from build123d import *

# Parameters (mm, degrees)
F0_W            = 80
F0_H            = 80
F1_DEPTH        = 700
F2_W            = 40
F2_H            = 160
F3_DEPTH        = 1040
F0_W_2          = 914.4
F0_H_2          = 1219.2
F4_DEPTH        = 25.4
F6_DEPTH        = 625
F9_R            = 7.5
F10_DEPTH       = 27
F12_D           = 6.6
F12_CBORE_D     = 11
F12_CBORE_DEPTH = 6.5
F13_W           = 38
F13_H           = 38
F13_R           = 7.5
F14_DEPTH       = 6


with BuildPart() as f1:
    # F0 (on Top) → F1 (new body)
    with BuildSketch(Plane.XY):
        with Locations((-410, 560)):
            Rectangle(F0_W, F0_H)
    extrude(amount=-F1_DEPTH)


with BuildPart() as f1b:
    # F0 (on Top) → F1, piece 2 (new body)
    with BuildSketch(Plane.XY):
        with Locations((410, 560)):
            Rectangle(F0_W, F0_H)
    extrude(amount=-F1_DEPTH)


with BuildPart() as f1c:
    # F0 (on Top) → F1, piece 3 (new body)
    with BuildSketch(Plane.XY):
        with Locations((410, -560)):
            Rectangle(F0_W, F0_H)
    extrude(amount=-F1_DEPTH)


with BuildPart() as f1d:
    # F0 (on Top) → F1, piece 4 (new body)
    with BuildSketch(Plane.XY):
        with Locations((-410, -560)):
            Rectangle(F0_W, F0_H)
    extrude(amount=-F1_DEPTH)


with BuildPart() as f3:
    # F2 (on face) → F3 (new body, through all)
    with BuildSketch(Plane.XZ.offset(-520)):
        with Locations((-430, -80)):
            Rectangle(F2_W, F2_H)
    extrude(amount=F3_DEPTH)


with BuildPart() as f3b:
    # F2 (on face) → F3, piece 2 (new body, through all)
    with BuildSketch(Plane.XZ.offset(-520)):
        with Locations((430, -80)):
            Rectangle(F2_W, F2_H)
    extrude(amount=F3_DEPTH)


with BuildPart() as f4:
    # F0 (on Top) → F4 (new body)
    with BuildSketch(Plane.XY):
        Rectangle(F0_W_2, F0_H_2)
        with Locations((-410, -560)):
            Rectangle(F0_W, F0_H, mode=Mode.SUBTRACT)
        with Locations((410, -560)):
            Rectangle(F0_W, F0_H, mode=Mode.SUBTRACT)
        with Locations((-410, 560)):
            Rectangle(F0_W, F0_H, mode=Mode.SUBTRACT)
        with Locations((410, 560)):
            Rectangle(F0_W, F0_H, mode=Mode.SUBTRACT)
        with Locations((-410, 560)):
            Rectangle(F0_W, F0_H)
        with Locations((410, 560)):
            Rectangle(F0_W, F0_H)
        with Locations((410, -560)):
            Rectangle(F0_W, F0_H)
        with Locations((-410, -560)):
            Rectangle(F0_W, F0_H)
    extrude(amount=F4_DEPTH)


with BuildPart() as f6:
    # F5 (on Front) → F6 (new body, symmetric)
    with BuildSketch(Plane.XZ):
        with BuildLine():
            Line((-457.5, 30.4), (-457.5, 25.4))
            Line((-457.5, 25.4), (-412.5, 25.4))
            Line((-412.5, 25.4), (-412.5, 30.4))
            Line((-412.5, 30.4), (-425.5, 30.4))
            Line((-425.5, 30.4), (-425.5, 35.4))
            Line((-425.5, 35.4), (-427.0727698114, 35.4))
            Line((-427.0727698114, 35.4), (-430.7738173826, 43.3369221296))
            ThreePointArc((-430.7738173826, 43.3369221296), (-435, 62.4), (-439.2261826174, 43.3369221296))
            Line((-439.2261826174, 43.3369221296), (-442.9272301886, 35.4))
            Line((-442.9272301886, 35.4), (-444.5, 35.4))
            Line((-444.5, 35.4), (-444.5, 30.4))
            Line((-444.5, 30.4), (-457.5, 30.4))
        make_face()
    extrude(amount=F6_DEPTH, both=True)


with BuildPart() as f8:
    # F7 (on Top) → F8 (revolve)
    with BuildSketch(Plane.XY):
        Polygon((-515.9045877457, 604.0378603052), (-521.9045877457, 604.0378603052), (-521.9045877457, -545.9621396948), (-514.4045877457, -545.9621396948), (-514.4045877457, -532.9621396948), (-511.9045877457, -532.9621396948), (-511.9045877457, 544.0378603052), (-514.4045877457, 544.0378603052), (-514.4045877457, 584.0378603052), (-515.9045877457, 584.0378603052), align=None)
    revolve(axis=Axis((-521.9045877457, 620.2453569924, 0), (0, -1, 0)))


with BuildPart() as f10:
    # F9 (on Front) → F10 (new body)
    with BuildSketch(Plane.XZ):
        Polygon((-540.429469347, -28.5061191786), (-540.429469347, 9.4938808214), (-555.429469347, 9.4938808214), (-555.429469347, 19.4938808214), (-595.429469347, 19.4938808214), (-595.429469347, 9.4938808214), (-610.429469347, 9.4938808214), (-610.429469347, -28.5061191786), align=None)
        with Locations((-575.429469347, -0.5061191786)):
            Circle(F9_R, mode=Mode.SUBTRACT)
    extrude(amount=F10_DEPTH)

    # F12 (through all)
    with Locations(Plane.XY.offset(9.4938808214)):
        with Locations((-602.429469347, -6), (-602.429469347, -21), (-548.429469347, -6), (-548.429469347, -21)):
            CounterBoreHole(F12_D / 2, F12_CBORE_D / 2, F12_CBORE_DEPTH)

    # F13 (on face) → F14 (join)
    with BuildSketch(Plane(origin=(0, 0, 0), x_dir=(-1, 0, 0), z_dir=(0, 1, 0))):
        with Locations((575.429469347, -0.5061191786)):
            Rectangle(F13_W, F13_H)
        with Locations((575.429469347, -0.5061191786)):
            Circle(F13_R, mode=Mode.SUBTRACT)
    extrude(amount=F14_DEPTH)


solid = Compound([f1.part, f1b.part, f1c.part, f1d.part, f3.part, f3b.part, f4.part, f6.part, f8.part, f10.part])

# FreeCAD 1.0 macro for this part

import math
import FreeCAD as App
import Part
import Sketcher
from FreeCAD import Vector
Q = App.Units.Quantity

doc = App.newDocument("Part")
params = doc.addObject("Spreadsheet::Sheet", "Params")
for row, (alias, value) in enumerate([
    ("sketch1_width", "80 mm"),
    ("pad1_length", "700 mm"),
    ("sketch2_width", "80 mm"),
    ("pad2_length", "700 mm"),
    ("sketch3_width", "80 mm"),
    ("pad3_length", "700 mm"),
    ("sketch4_width", "80 mm"),
    ("pad4_length", "700 mm"),
    ("sketch5_width", "40 mm"),
    ("sketch5_height", "160 mm"),
    ("pad5_length", "1040 mm"),
    ("sketch6_width", "40 mm"),
    ("sketch6_height", "160 mm"),
    ("pad6_length", "1040 mm"),
    ("sketch7_width", "914.4 mm"),
    ("sketch7_height", "1219.2 mm"),
    ("pad7_length", "25.4 mm"),
    ("sketch8_radius", "10 mm"),
    ("sketch8_width", "45 mm"),
    ("sketch8_width2", "13 mm"),
    ("sketch8_height", "5 mm"),
    ("pad8_length", "1250 mm"),
    ("sketch9_width", "6 mm"),
    ("sketch9_height", "1150 mm"),
    ("sketch9_height2", "13 mm"),
    ("sketch9_height3", "1077 mm"),
    ("sketch9_height4", "40 mm"),
    ("revolution_angle", "360 deg"),
    ("sketch10_diameter", "15 mm"),
    ("sketch10_width", "15 mm"),
    ("sketch10_width2", "40 mm"),
    ("sketch10_height", "38 mm"),
    ("sketch10_height2", "10 mm"),
    ("pad9_length", "27 mm"),
    ("sketch11_diameter", "6.6 mm"),
    ("hole_diameter", "6.6 mm"),
    ("hole_cbore_diameter", "11 mm"),
    ("hole_cbore_depth", "6.5 mm"),
    ("sketch12_diameter", "15 mm"),
    ("sketch12_width", "38 mm"),
    ("pad10_length", "6 mm"),
], start=1):
    params.set(f"A{row}", alias)
    params.set(f"B{row}", "=" + value)
    params.setAlias(f"B{row}", alias)

body = doc.addObject("PartDesign::Body", "Body")

# Sketch on XY plane
sketch1 = doc.addObject("Sketcher::SketchObject", "Sketch")
body.addObject(sketch1)
sketch1.AttachmentSupport = (doc.XY_Plane, [""])
sketch1.MapMode = "FlatFace"
sketch1.addGeometry([
    Part.LineSegment(Vector(-450, 600, 0), Vector(-450, 520, 0)),
    Part.LineSegment(Vector(-450, 520, 0), Vector(-370, 520, 0)),
    Part.LineSegment(Vector(-370, 520, 0), Vector(-370, 600, 0)),
    Part.LineSegment(Vector(-370, 600, 0), Vector(-450, 600, 0)),
], False)
sketch1.addConstraint([
    Sketcher.Constraint("Coincident", 0, 2, 1, 1),
    Sketcher.Constraint("Coincident", 1, 2, 2, 1),
    Sketcher.Constraint("Coincident", 2, 2, 3, 1),
    Sketcher.Constraint("Coincident", 3, 2, 0, 1),
    Sketcher.Constraint("Vertical", 0),
    Sketcher.Constraint("Horizontal", 1),
    Sketcher.Constraint("Vertical", 2),
    Sketcher.Constraint("Horizontal", 3),
    Sketcher.Constraint("Equal", 3, 0),
    Sketcher.Constraint("DistanceX", 1, 1, 1, 2, Q("80 mm")),
    Sketcher.Constraint("DistanceX", 0, 2, -1, 1, Q("450 mm")),
    Sketcher.Constraint("DistanceY", -1, 1, 0, 2, Q("520 mm")),
])
sketch1.setExpression("Constraints[9]", "Params.sketch1_width")
pad1 = doc.addObject("PartDesign::Pad", "Pad")
body.addObject(pad1)
pad1.Profile = sketch1
pad1.setExpression("Length", "Params.pad1_length")
pad1.Reversed = True
body2 = doc.addObject("PartDesign::Body", "Body001")

# Sketch on XY plane
sketch2 = doc.addObject("Sketcher::SketchObject", "Sketch001")
body2.addObject(sketch2)
sketch2.AttachmentSupport = (doc.getObject("XY_Plane001"), [""])
sketch2.MapMode = "FlatFace"
sketch2.addGeometry([
    Part.LineSegment(Vector(370, 600, 0), Vector(370, 520, 0)),
    Part.LineSegment(Vector(370, 520, 0), Vector(450, 520, 0)),
    Part.LineSegment(Vector(450, 520, 0), Vector(450, 600, 0)),
    Part.LineSegment(Vector(450, 600, 0), Vector(370, 600, 0)),
], False)
sketch2.addConstraint([
    Sketcher.Constraint("Coincident", 0, 2, 1, 1),
    Sketcher.Constraint("Coincident", 1, 2, 2, 1),
    Sketcher.Constraint("Coincident", 2, 2, 3, 1),
    Sketcher.Constraint("Coincident", 3, 2, 0, 1),
    Sketcher.Constraint("Vertical", 0),
    Sketcher.Constraint("Horizontal", 1),
    Sketcher.Constraint("Vertical", 2),
    Sketcher.Constraint("Horizontal", 3),
    Sketcher.Constraint("Equal", 3, 0),
    Sketcher.Constraint("DistanceX", 1, 1, 1, 2, Q("80 mm")),
    Sketcher.Constraint("DistanceX", -1, 1, 0, 2, Q("370 mm")),
    Sketcher.Constraint("DistanceY", -1, 1, 0, 2, Q("520 mm")),
])
sketch2.setExpression("Constraints[9]", "Params.sketch2_width")
pad2 = doc.addObject("PartDesign::Pad", "Pad001")
body2.addObject(pad2)
pad2.Profile = sketch2
pad2.setExpression("Length", "Params.pad2_length")
pad2.Reversed = True
body3 = doc.addObject("PartDesign::Body", "Body002")

# Sketch on XY plane
sketch3 = doc.addObject("Sketcher::SketchObject", "Sketch002")
body3.addObject(sketch3)
sketch3.AttachmentSupport = (doc.getObject("XY_Plane002"), [""])
sketch3.MapMode = "FlatFace"
sketch3.addGeometry([
    Part.LineSegment(Vector(370, -520, 0), Vector(370, -600, 0)),
    Part.LineSegment(Vector(370, -600, 0), Vector(450, -600, 0)),
    Part.LineSegment(Vector(450, -600, 0), Vector(450, -520, 0)),
    Part.LineSegment(Vector(450, -520, 0), Vector(370, -520, 0)),
], False)
sketch3.addConstraint([
    Sketcher.Constraint("Coincident", 0, 2, 1, 1),
    Sketcher.Constraint("Coincident", 1, 2, 2, 1),
    Sketcher.Constraint("Coincident", 2, 2, 3, 1),
    Sketcher.Constraint("Coincident", 3, 2, 0, 1),
    Sketcher.Constraint("Vertical", 0),
    Sketcher.Constraint("Horizontal", 1),
    Sketcher.Constraint("Vertical", 2),
    Sketcher.Constraint("Horizontal", 3),
    Sketcher.Constraint("Equal", 3, 0),
    Sketcher.Constraint("DistanceX", 1, 1, 1, 2, Q("80 mm")),
    Sketcher.Constraint("DistanceX", -1, 1, 0, 2, Q("370 mm")),
    Sketcher.Constraint("DistanceY", 0, 2, -1, 1, Q("600 mm")),
])
sketch3.setExpression("Constraints[9]", "Params.sketch3_width")
pad3 = doc.addObject("PartDesign::Pad", "Pad002")
body3.addObject(pad3)
pad3.Profile = sketch3
pad3.setExpression("Length", "Params.pad3_length")
pad3.Reversed = True
body4 = doc.addObject("PartDesign::Body", "Body003")

# Sketch on XY plane
sketch4 = doc.addObject("Sketcher::SketchObject", "Sketch003")
body4.addObject(sketch4)
sketch4.AttachmentSupport = (doc.getObject("XY_Plane003"), [""])
sketch4.MapMode = "FlatFace"
sketch4.addGeometry([
    Part.LineSegment(Vector(-450, -520, 0), Vector(-450, -600, 0)),
    Part.LineSegment(Vector(-450, -600, 0), Vector(-370, -600, 0)),
    Part.LineSegment(Vector(-370, -600, 0), Vector(-370, -520, 0)),
    Part.LineSegment(Vector(-370, -520, 0), Vector(-450, -520, 0)),
], False)
sketch4.addConstraint([
    Sketcher.Constraint("Coincident", 0, 2, 1, 1),
    Sketcher.Constraint("Coincident", 1, 2, 2, 1),
    Sketcher.Constraint("Coincident", 2, 2, 3, 1),
    Sketcher.Constraint("Coincident", 3, 2, 0, 1),
    Sketcher.Constraint("Vertical", 0),
    Sketcher.Constraint("Horizontal", 1),
    Sketcher.Constraint("Vertical", 2),
    Sketcher.Constraint("Horizontal", 3),
    Sketcher.Constraint("Equal", 3, 0),
    Sketcher.Constraint("DistanceX", 1, 1, 1, 2, Q("80 mm")),
    Sketcher.Constraint("DistanceX", 0, 2, -1, 1, Q("450 mm")),
    Sketcher.Constraint("DistanceY", 0, 2, -1, 1, Q("600 mm")),
])
sketch4.setExpression("Constraints[9]", "Params.sketch4_width")
pad4 = doc.addObject("PartDesign::Pad", "Pad003")
body4.addObject(pad4)
pad4.Profile = sketch4
pad4.setExpression("Length", "Params.pad4_length")
pad4.Reversed = True
body5 = doc.addObject("PartDesign::Body", "Body004")

# Sketch on XZ plane
sketch5 = doc.addObject("Sketcher::SketchObject", "Sketch004")
body5.addObject(sketch5)
sketch5.AttachmentSupport = (doc.getObject("XZ_Plane004"), [""])
sketch5.MapMode = "FlatFace"
sketch5.AttachmentOffset = App.Placement(Vector(0, 0, -520), App.Rotation())
sketch5.addGeometry([
    Part.LineSegment(Vector(-450, 0, 0), Vector(-450, -160, 0)),
    Part.LineSegment(Vector(-450, -160, 0), Vector(-410, -160, 0)),
    Part.LineSegment(Vector(-410, -160, 0), Vector(-410, 0, 0)),
    Part.LineSegment(Vector(-410, 0, 0), Vector(-450, 0, 0)),
], False)
sketch5.addConstraint([
    Sketcher.Constraint("Coincident", 0, 2, 1, 1),
    Sketcher.Constraint("Coincident", 1, 2, 2, 1),
    Sketcher.Constraint("Coincident", 2, 2, 3, 1),
    Sketcher.Constraint("Coincident", 3, 2, 0, 1),
    Sketcher.Constraint("Vertical", 0),
    Sketcher.Constraint("Horizontal", 1),
    Sketcher.Constraint("Vertical", 2),
    Sketcher.Constraint("Horizontal", 3),
    Sketcher.Constraint("PointOnObject", 2, 2, -1),
    Sketcher.Constraint("DistanceX", 1, 1, 1, 2, Q("40 mm")),
    Sketcher.Constraint("DistanceY", 0, 2, 0, 1, Q("160 mm")),
    Sketcher.Constraint("DistanceX", 0, 2, -1, 1, Q("450 mm")),
])
sketch5.setExpression("Constraints[9]", "Params.sketch5_width")
sketch5.setExpression("Constraints[10]", "Params.sketch5_height")
pad5 = doc.addObject("PartDesign::Pad", "Pad004")
body5.addObject(pad5)
pad5.Profile = sketch5
pad5.setExpression("Length", "Params.pad5_length")
body6 = doc.addObject("PartDesign::Body", "Body005")

# Sketch on XZ plane
sketch6 = doc.addObject("Sketcher::SketchObject", "Sketch005")
body6.addObject(sketch6)
sketch6.AttachmentSupport = (doc.getObject("XZ_Plane005"), [""])
sketch6.MapMode = "FlatFace"
sketch6.AttachmentOffset = App.Placement(Vector(0, 0, -520), App.Rotation())
sketch6.addGeometry([
    Part.LineSegment(Vector(410, 0, 0), Vector(410, -160, 0)),
    Part.LineSegment(Vector(410, -160, 0), Vector(450, -160, 0)),
    Part.LineSegment(Vector(450, -160, 0), Vector(450, 0, 0)),
    Part.LineSegment(Vector(450, 0, 0), Vector(410, 0, 0)),
], False)
sketch6.addConstraint([
    Sketcher.Constraint("Coincident", 0, 2, 1, 1),
    Sketcher.Constraint("Coincident", 1, 2, 2, 1),
    Sketcher.Constraint("Coincident", 2, 2, 3, 1),
    Sketcher.Constraint("Coincident", 3, 2, 0, 1),
    Sketcher.Constraint("Vertical", 0),
    Sketcher.Constraint("Horizontal", 1),
    Sketcher.Constraint("Vertical", 2),
    Sketcher.Constraint("Horizontal", 3),
    Sketcher.Constraint("PointOnObject", 2, 2, -1),
    Sketcher.Constraint("DistanceX", 1, 1, 1, 2, Q("40 mm")),
    Sketcher.Constraint("DistanceY", 0, 2, 0, 1, Q("160 mm")),
    Sketcher.Constraint("DistanceX", -1, 1, 0, 2, Q("410 mm")),
])
sketch6.setExpression("Constraints[9]", "Params.sketch6_width")
sketch6.setExpression("Constraints[10]", "Params.sketch6_height")
pad6 = doc.addObject("PartDesign::Pad", "Pad005")
body6.addObject(pad6)
pad6.Profile = sketch6
pad6.setExpression("Length", "Params.pad6_length")
body7 = doc.addObject("PartDesign::Body", "Body006")

# Sketch on XY plane
sketch7 = doc.addObject("Sketcher::SketchObject", "Sketch006")
body7.addObject(sketch7)
sketch7.AttachmentSupport = (doc.getObject("XY_Plane006"), [""])
sketch7.MapMode = "FlatFace"
sketch7.addGeometry([
    Part.LineSegment(Vector(-457, 610, 0), Vector(-457, -610, 0)),
    Part.LineSegment(Vector(-457, -610, 0), Vector(457, -610, 0)),
    Part.LineSegment(Vector(457, -610, 0), Vector(457, 610, 0)),
    Part.LineSegment(Vector(457, 610, 0), Vector(-457, 610, 0)),
], False)
sketch7.addConstraint([
    Sketcher.Constraint("Coincident", 0, 2, 1, 1),
    Sketcher.Constraint("Coincident", 1, 2, 2, 1),
    Sketcher.Constraint("Coincident", 2, 2, 3, 1),
    Sketcher.Constraint("Coincident", 3, 2, 0, 1),
    Sketcher.Constraint("Vertical", 0),
    Sketcher.Constraint("Horizontal", 1),
    Sketcher.Constraint("Vertical", 2),
    Sketcher.Constraint("Horizontal", 3),
    Sketcher.Constraint("Symmetric", 0, 2, 2, 2, -1, 1),
    Sketcher.Constraint("DistanceX", 1, 1, 1, 2, Q("914.4 mm")),
    Sketcher.Constraint("DistanceY", 0, 2, 0, 1, Q("1219.2 mm")),
])
sketch7.setExpression("Constraints[9]", "Params.sketch7_width")
sketch7.setExpression("Constraints[10]", "Params.sketch7_height")
pad7 = doc.addObject("PartDesign::Pad", "Pad006")
body7.addObject(pad7)
pad7.Profile = sketch7
pad7.setExpression("Length", "Params.pad7_length")
body8 = doc.addObject("PartDesign::Body", "Body007")

# Sketch on XZ plane
sketch8 = doc.addObject("Sketcher::SketchObject", "Sketch007")
body8.addObject(sketch8)
sketch8.AttachmentSupport = (doc.getObject("XZ_Plane007"), [""])
sketch8.MapMode = "FlatFace"
sketch8.addGeometry([
    Part.LineSegment(Vector(-457.5, 30.4, 0), Vector(-457.5, 25.4, 0)),  # 0
    Part.LineSegment(Vector(-457.5, 25.4, 0), Vector(-412.5, 25.4, 0)),  # 1
    Part.LineSegment(Vector(-412.5, 25.4, 0), Vector(-412.5, 30.4, 0)),  # 2
    Part.LineSegment(Vector(-412.5, 30.4, 0), Vector(-425.5, 30.4, 0)),  # 3
    Part.LineSegment(Vector(-425.5, 30.4, 0), Vector(-425.5, 35.4, 0)),  # 4
    Part.LineSegment(Vector(-425.5, 35.4, 0), Vector(-427.1, 35.4, 0)),  # 5
    Part.LineSegment(Vector(-427.1, 35.4, 0), Vector(-430.8, 43.3, 0)),  # 6
    Part.ArcOfCircle(Part.Circle(Vector(-435, 52.4, 0), Vector(0, 0, 1), 10), math.radians(-65), math.radians(245)),  # 7
    Part.LineSegment(Vector(-439.2, 43.3, 0), Vector(-442.9, 35.4, 0)),  # 8
    Part.LineSegment(Vector(-442.9, 35.4, 0), Vector(-444.5, 35.4, 0)),  # 9
    Part.LineSegment(Vector(-444.5, 35.4, 0), Vector(-444.5, 30.4, 0)),  # 10
    Part.LineSegment(Vector(-444.5, 30.4, 0), Vector(-457.5, 30.4, 0)),  # 11
], False)
sketch8.addConstraint([
    Sketcher.Constraint("Coincident", 0, 2, 1, 1),
    Sketcher.Constraint("Coincident", 1, 2, 2, 1),
    Sketcher.Constraint("Coincident", 2, 2, 3, 1),
    Sketcher.Constraint("Coincident", 3, 2, 4, 1),
    Sketcher.Constraint("Coincident", 4, 2, 5, 1),
    Sketcher.Constraint("Coincident", 5, 2, 6, 1),
    Sketcher.Constraint("Coincident", 6, 2, 7, 1),
    Sketcher.Constraint("Coincident", 7, 2, 8, 1),
    Sketcher.Constraint("Coincident", 8, 2, 9, 1),
    Sketcher.Constraint("Coincident", 9, 2, 10, 1),
    Sketcher.Constraint("Coincident", 10, 2, 11, 1),
    Sketcher.Constraint("Coincident", 11, 2, 0, 1),
    Sketcher.Constraint("Vertical", 0),
    Sketcher.Constraint("Horizontal", 1),
    Sketcher.Constraint("Vertical", 2),
    Sketcher.Constraint("Horizontal", 3),
    Sketcher.Constraint("Vertical", 4),
    Sketcher.Constraint("Horizontal", 5),
    Sketcher.Constraint("Horizontal", 9),
    Sketcher.Constraint("Vertical", 10),
    Sketcher.Constraint("Horizontal", 11),
    Sketcher.Constraint("Horizontal", 6, 2, 7, 2),
    Sketcher.Constraint("Horizontal", 5, 2, 8, 2),
    Sketcher.Constraint("Horizontal", 3, 2, 10, 2),
    Sketcher.Constraint("Equal", 5, 9),
    Sketcher.Constraint("Equal", 3, 11),
    Sketcher.Constraint("Equal", 2, 4),
    Sketcher.Constraint("Equal", 6, 8),
    Sketcher.Constraint("Radius", 7, Q("10 mm")),
    Sketcher.Constraint("DistanceX", 1, 1, 1, 2, Q("45 mm")),
    Sketcher.Constraint("DistanceX", 3, 2, 3, 1, Q("13 mm")),
    Sketcher.Constraint("DistanceY", 0, 2, 0, 1, Q("5 mm")),
    Sketcher.Constraint("Angle", 6, Q("115 deg")),
    Sketcher.Constraint("DistanceX", 7, 3, -1, 1, Q("435 mm")),
    Sketcher.Constraint("DistanceY", 0, 2, 7, 3, Q("27 mm")),
    Sketcher.Constraint("DistanceY", -1, 1, 7, 3, Q("52.4 mm")),
    Sketcher.Constraint("DistanceX", 5, 2, 5, 1, Q("1.57277 mm")),
])
sketch8.setExpression("Constraints[28]", "Params.sketch8_radius")
sketch8.setExpression("Constraints[29]", "Params.sketch8_width")
sketch8.setExpression("Constraints[30]", "Params.sketch8_width2")
sketch8.setExpression("Constraints[31]", "Params.sketch8_height")
pad8 = doc.addObject("PartDesign::Pad", "Pad007")
body8.addObject(pad8)
pad8.Profile = sketch8
pad8.setExpression("Length", "Params.pad8_length")
pad8.Midplane = True
body9 = doc.addObject("PartDesign::Body", "Body008")

# Sketch on XY plane
sketch9 = doc.addObject("Sketcher::SketchObject", "Sketch008")
body9.addObject(sketch9)
sketch9.AttachmentSupport = (doc.getObject("XY_Plane008"), [""])
sketch9.MapMode = "FlatFace"
sketch9.addGeometry([
    Part.LineSegment(Vector(-515.9, 604, 0), Vector(-521.9, 604, 0)),  # 0
    Part.LineSegment(Vector(-521.9, 604, 0), Vector(-521.9, -546, 0)),  # 1
    Part.LineSegment(Vector(-521.9, -546, 0), Vector(-514.4, -546, 0)),  # 2
    Part.LineSegment(Vector(-514.4, -546, 0), Vector(-514.4, -533, 0)),  # 3
    Part.LineSegment(Vector(-514.4, -533, 0), Vector(-511.9, -533, 0)),  # 4
    Part.LineSegment(Vector(-511.9, -533, 0), Vector(-511.9, 544, 0)),  # 5
    Part.LineSegment(Vector(-511.9, 544, 0), Vector(-514.4, 544, 0)),  # 6
    Part.LineSegment(Vector(-514.4, 544, 0), Vector(-514.4, 584, 0)),  # 7
    Part.LineSegment(Vector(-514.4, 584, 0), Vector(-515.9, 584, 0)),  # 8
    Part.LineSegment(Vector(-515.9, 584, 0), Vector(-515.9, 604, 0)),  # 9
], False)
sketch9.addGeometry(Part.LineSegment(Vector(-521.9, 604, 0), Vector(-521.9, -546, 0)), True)  # axis
sketch9.addConstraint([
    Sketcher.Constraint("Coincident", 0, 2, 1, 1),
    Sketcher.Constraint("Coincident", 1, 2, 2, 1),
    Sketcher.Constraint("Coincident", 2, 2, 3, 1),
    Sketcher.Constraint("Coincident", 3, 2, 4, 1),
    Sketcher.Constraint("Coincident", 4, 2, 5, 1),
    Sketcher.Constraint("Coincident", 5, 2, 6, 1),
    Sketcher.Constraint("Coincident", 6, 2, 7, 1),
    Sketcher.Constraint("Coincident", 7, 2, 8, 1),
    Sketcher.Constraint("Coincident", 8, 2, 9, 1),
    Sketcher.Constraint("Coincident", 9, 2, 0, 1),
    Sketcher.Constraint("Horizontal", 0),
    Sketcher.Constraint("Vertical", 1),
    Sketcher.Constraint("Horizontal", 2),
    Sketcher.Constraint("Vertical", 3),
    Sketcher.Constraint("Horizontal", 4),
    Sketcher.Constraint("Vertical", 5),
    Sketcher.Constraint("Horizontal", 6),
    Sketcher.Constraint("Vertical", 7),
    Sketcher.Constraint("Horizontal", 8),
    Sketcher.Constraint("Vertical", 9),
    Sketcher.Constraint("Vertical", 10),
    Sketcher.Constraint("Coincident", 10, 1, 0, 2),
    Sketcher.Constraint("Horizontal", 2, 2, 10, 2),
    Sketcher.Constraint("Vertical", 3, 2, 6, 2),
    Sketcher.Constraint("DistanceX", 0, 2, 0, 1, Q("6 mm")),
    Sketcher.Constraint("DistanceY", 1, 2, 1, 1, Q("1150 mm")),
    Sketcher.Constraint("DistanceY", 3, 1, 3, 2, Q("13 mm")),
    Sketcher.Constraint("DistanceY", 5, 1, 5, 2, Q("1077 mm")),
    Sketcher.Constraint("DistanceY", 7, 1, 7, 2, Q("40 mm")),
    Sketcher.Constraint("DistanceX", 2, 1, 2, 2, Q("7.5 mm")),
    Sketcher.Constraint("DistanceX", 4, 1, 4, 2, Q("2.5 mm")),
    Sketcher.Constraint("DistanceY", -1, 1, 0, 2, Q("604.03786 mm")),
    Sketcher.Constraint("DistanceX", 0, 2, -1, 1, Q("521.904588 mm")),
])
sketch9.setExpression("Constraints[24]", "Params.sketch9_width")
sketch9.setExpression("Constraints[25]", "Params.sketch9_height")
sketch9.setExpression("Constraints[26]", "Params.sketch9_height2")
sketch9.setExpression("Constraints[27]", "Params.sketch9_height3")
sketch9.setExpression("Constraints[28]", "Params.sketch9_height4")
revolution = doc.addObject("PartDesign::Revolution", "Revolution")
body9.addObject(revolution)
revolution.Profile = sketch9
revolution.ReferenceAxis = (sketch9, ["Axis0"])
revolution.setExpression("Angle", "Params.revolution_angle")
body10 = doc.addObject("PartDesign::Body", "Body009")

# Sketch on XZ plane
sketch10 = doc.addObject("Sketcher::SketchObject", "Sketch009")
body10.addObject(sketch10)
sketch10.AttachmentSupport = (doc.getObject("XZ_Plane009"), [""])
sketch10.MapMode = "FlatFace"
sketch10.addGeometry([
    Part.LineSegment(Vector(-540, -29, 0), Vector(-540, 9, 0)),  # 0
    Part.LineSegment(Vector(-540, 9, 0), Vector(-555, 9, 0)),  # 1
    Part.LineSegment(Vector(-555, 9, 0), Vector(-555, 19, 0)),  # 2
    Part.LineSegment(Vector(-555, 19, 0), Vector(-595, 19, 0)),  # 3
    Part.LineSegment(Vector(-595, 19, 0), Vector(-595, 9, 0)),  # 4
    Part.LineSegment(Vector(-595, 9, 0), Vector(-610, 9, 0)),  # 5
    Part.LineSegment(Vector(-610, 9, 0), Vector(-610, -29, 0)),  # 6
    Part.LineSegment(Vector(-610, -29, 0), Vector(-540, -29, 0)),  # 7
    Part.Circle(Vector(-575, -1, 0), Vector(0, 0, 1), 8),  # 8
], False)
sketch10.addConstraint([
    Sketcher.Constraint("Coincident", 0, 2, 1, 1),
    Sketcher.Constraint("Coincident", 1, 2, 2, 1),
    Sketcher.Constraint("Coincident", 2, 2, 3, 1),
    Sketcher.Constraint("Coincident", 3, 2, 4, 1),
    Sketcher.Constraint("Coincident", 4, 2, 5, 1),
    Sketcher.Constraint("Coincident", 5, 2, 6, 1),
    Sketcher.Constraint("Coincident", 6, 2, 7, 1),
    Sketcher.Constraint("Coincident", 7, 2, 0, 1),
    Sketcher.Constraint("Vertical", 0),
    Sketcher.Constraint("Horizontal", 1),
    Sketcher.Constraint("Vertical", 2),
    Sketcher.Constraint("Horizontal", 3),
    Sketcher.Constraint("Vertical", 4),
    Sketcher.Constraint("Horizontal", 5),
    Sketcher.Constraint("Vertical", 6),
    Sketcher.Constraint("Horizontal", 7),
    Sketcher.Constraint("Horizontal", 1, 2, 4, 2),
    Sketcher.Constraint("Equal", 1, 5),
    Sketcher.Constraint("Diameter", 8, Q("15 mm")),
    Sketcher.Constraint("DistanceX", 1, 2, 1, 1, Q("15 mm")),
    Sketcher.Constraint("DistanceX", 3, 2, 3, 1, Q("40 mm")),
    Sketcher.Constraint("DistanceY", 0, 1, 0, 2, Q("38 mm")),
    Sketcher.Constraint("DistanceY", 2, 1, 2, 2, Q("10 mm")),
    Sketcher.Constraint("DistanceX", 8, 3, 0, 2, Q("35 mm")),
    Sketcher.Constraint("DistanceY", 8, 3, 0, 2, Q("10 mm")),
    Sketcher.Constraint("DistanceX", 8, 3, -1, 1, Q("575.429469 mm")),
    Sketcher.Constraint("DistanceY", 8, 3, -1, 1, Q("0.506119 mm")),
])
sketch10.setExpression("Constraints[18]", "Params.sketch10_diameter")
sketch10.setExpression("Constraints[19]", "Params.sketch10_width")
sketch10.setExpression("Constraints[20]", "Params.sketch10_width2")
sketch10.setExpression("Constraints[21]", "Params.sketch10_height")
sketch10.setExpression("Constraints[22]", "Params.sketch10_height2")
pad9 = doc.addObject("PartDesign::Pad", "Pad008")
body10.addObject(pad9)
pad9.Profile = sketch10
pad9.setExpression("Length", "Params.pad9_length")

# Sketch on XY plane
sketch11 = doc.addObject("Sketcher::SketchObject", "Sketch010")
body10.addObject(sketch11)
sketch11.AttachmentSupport = (doc.getObject("XY_Plane009"), [""])
sketch11.MapMode = "FlatFace"
sketch11.AttachmentOffset = App.Placement(Vector(0, 0, 9.493881), App.Rotation())
sketch11.addGeometry([
    Part.Circle(Vector(-602.4, -6, 0), Vector(0, 0, 1), 3.3),
    Part.Circle(Vector(-602.4, -21, 0), Vector(0, 0, 1), 3.3),
    Part.Circle(Vector(-548.4, -6, 0), Vector(0, 0, 1), 3.3),
    Part.Circle(Vector(-548.4, -21, 0), Vector(0, 0, 1), 3.3),
], False)
sketch11.addConstraint([
    Sketcher.Constraint("Equal", 0, 1),
    Sketcher.Constraint("Equal", 1, 2),
    Sketcher.Constraint("Equal", 2, 3),
    Sketcher.Constraint("Horizontal", 0, 3, 2, 3),
    Sketcher.Constraint("Horizontal", 1, 3, 3, 3),
    Sketcher.Constraint("Vertical", 0, 3, 1, 3),
    Sketcher.Constraint("Vertical", 2, 3, 3, 3),
    Sketcher.Constraint("Diameter", 0, Q("6.6 mm")),
    Sketcher.Constraint("DistanceY", 0, 3, -1, 1, Q("6 mm")),
    Sketcher.Constraint("DistanceY", 1, 3, -1, 1, Q("21 mm")),
    Sketcher.Constraint("DistanceX", 0, 3, 2, 3, Q("54 mm")),
    Sketcher.Constraint("DistanceX", 0, 3, -1, 1, Q("602.429469 mm")),
])
sketch11.setExpression("Constraints[7]", "Params.sketch11_diameter")
doc.recompute()
hole = doc.addObject("PartDesign::Hole", "Hole")
body10.addObject(hole)
hole.Profile = sketch11
hole.ThreadType = "None"
hole.setExpression("Diameter", "Params.hole_diameter")
hole.DepthType = "ThroughAll"
hole.HoleCutType = "Counterbore"
hole.setExpression("HoleCutDiameter", "Params.hole_cbore_diameter")
hole.setExpression("HoleCutDepth", "Params.hole_cbore_depth")

# Sketch on XZ plane
sketch12 = doc.addObject("Sketcher::SketchObject", "Sketch011")
body10.addObject(sketch12)
sketch12.AttachmentSupport = (doc.getObject("XZ_Plane009"), [""])
sketch12.MapMode = "FlatFace"
sketch12.addGeometry([
    Part.LineSegment(Vector(-556, 18, 0), Vector(-556, -20, 0)),  # 0
    Part.LineSegment(Vector(-556, -20, 0), Vector(-594, -20, 0)),  # 1
    Part.LineSegment(Vector(-594, -20, 0), Vector(-594, 18, 0)),  # 2
    Part.LineSegment(Vector(-594, 18, 0), Vector(-556, 18, 0)),  # 3
    Part.Circle(Vector(-575, -1, 0), Vector(0, 0, 1), 8),  # 4
], False)
sketch12.addConstraint([
    Sketcher.Constraint("Coincident", 0, 2, 1, 1),
    Sketcher.Constraint("Coincident", 1, 2, 2, 1),
    Sketcher.Constraint("Coincident", 2, 2, 3, 1),
    Sketcher.Constraint("Coincident", 3, 2, 0, 1),
    Sketcher.Constraint("Vertical", 0),
    Sketcher.Constraint("Horizontal", 1),
    Sketcher.Constraint("Vertical", 2),
    Sketcher.Constraint("Horizontal", 3),
    Sketcher.Constraint("Equal", 3, 0),
    Sketcher.Constraint("Diameter", 4, Q("15 mm")),
    Sketcher.Constraint("DistanceX", 1, 2, 1, 1, Q("38 mm")),
    Sketcher.Constraint("DistanceX", 4, 3, 0, 2, Q("19 mm")),
    Sketcher.Constraint("DistanceY", 0, 2, 4, 3, Q("19 mm")),
    Sketcher.Constraint("DistanceX", 4, 3, -1, 1, Q("575.429469 mm")),
    Sketcher.Constraint("DistanceY", 4, 3, -1, 1, Q("0.506119 mm")),
])
sketch12.setExpression("Constraints[9]", "Params.sketch12_diameter")
sketch12.setExpression("Constraints[10]", "Params.sketch12_width")
pad10 = doc.addObject("PartDesign::Pad", "Pad009")
body10.addObject(pad10)
pad10.Profile = sketch12
pad10.setExpression("Length", "Params.pad10_length")
pad10.Reversed = True

doc.recompute()
